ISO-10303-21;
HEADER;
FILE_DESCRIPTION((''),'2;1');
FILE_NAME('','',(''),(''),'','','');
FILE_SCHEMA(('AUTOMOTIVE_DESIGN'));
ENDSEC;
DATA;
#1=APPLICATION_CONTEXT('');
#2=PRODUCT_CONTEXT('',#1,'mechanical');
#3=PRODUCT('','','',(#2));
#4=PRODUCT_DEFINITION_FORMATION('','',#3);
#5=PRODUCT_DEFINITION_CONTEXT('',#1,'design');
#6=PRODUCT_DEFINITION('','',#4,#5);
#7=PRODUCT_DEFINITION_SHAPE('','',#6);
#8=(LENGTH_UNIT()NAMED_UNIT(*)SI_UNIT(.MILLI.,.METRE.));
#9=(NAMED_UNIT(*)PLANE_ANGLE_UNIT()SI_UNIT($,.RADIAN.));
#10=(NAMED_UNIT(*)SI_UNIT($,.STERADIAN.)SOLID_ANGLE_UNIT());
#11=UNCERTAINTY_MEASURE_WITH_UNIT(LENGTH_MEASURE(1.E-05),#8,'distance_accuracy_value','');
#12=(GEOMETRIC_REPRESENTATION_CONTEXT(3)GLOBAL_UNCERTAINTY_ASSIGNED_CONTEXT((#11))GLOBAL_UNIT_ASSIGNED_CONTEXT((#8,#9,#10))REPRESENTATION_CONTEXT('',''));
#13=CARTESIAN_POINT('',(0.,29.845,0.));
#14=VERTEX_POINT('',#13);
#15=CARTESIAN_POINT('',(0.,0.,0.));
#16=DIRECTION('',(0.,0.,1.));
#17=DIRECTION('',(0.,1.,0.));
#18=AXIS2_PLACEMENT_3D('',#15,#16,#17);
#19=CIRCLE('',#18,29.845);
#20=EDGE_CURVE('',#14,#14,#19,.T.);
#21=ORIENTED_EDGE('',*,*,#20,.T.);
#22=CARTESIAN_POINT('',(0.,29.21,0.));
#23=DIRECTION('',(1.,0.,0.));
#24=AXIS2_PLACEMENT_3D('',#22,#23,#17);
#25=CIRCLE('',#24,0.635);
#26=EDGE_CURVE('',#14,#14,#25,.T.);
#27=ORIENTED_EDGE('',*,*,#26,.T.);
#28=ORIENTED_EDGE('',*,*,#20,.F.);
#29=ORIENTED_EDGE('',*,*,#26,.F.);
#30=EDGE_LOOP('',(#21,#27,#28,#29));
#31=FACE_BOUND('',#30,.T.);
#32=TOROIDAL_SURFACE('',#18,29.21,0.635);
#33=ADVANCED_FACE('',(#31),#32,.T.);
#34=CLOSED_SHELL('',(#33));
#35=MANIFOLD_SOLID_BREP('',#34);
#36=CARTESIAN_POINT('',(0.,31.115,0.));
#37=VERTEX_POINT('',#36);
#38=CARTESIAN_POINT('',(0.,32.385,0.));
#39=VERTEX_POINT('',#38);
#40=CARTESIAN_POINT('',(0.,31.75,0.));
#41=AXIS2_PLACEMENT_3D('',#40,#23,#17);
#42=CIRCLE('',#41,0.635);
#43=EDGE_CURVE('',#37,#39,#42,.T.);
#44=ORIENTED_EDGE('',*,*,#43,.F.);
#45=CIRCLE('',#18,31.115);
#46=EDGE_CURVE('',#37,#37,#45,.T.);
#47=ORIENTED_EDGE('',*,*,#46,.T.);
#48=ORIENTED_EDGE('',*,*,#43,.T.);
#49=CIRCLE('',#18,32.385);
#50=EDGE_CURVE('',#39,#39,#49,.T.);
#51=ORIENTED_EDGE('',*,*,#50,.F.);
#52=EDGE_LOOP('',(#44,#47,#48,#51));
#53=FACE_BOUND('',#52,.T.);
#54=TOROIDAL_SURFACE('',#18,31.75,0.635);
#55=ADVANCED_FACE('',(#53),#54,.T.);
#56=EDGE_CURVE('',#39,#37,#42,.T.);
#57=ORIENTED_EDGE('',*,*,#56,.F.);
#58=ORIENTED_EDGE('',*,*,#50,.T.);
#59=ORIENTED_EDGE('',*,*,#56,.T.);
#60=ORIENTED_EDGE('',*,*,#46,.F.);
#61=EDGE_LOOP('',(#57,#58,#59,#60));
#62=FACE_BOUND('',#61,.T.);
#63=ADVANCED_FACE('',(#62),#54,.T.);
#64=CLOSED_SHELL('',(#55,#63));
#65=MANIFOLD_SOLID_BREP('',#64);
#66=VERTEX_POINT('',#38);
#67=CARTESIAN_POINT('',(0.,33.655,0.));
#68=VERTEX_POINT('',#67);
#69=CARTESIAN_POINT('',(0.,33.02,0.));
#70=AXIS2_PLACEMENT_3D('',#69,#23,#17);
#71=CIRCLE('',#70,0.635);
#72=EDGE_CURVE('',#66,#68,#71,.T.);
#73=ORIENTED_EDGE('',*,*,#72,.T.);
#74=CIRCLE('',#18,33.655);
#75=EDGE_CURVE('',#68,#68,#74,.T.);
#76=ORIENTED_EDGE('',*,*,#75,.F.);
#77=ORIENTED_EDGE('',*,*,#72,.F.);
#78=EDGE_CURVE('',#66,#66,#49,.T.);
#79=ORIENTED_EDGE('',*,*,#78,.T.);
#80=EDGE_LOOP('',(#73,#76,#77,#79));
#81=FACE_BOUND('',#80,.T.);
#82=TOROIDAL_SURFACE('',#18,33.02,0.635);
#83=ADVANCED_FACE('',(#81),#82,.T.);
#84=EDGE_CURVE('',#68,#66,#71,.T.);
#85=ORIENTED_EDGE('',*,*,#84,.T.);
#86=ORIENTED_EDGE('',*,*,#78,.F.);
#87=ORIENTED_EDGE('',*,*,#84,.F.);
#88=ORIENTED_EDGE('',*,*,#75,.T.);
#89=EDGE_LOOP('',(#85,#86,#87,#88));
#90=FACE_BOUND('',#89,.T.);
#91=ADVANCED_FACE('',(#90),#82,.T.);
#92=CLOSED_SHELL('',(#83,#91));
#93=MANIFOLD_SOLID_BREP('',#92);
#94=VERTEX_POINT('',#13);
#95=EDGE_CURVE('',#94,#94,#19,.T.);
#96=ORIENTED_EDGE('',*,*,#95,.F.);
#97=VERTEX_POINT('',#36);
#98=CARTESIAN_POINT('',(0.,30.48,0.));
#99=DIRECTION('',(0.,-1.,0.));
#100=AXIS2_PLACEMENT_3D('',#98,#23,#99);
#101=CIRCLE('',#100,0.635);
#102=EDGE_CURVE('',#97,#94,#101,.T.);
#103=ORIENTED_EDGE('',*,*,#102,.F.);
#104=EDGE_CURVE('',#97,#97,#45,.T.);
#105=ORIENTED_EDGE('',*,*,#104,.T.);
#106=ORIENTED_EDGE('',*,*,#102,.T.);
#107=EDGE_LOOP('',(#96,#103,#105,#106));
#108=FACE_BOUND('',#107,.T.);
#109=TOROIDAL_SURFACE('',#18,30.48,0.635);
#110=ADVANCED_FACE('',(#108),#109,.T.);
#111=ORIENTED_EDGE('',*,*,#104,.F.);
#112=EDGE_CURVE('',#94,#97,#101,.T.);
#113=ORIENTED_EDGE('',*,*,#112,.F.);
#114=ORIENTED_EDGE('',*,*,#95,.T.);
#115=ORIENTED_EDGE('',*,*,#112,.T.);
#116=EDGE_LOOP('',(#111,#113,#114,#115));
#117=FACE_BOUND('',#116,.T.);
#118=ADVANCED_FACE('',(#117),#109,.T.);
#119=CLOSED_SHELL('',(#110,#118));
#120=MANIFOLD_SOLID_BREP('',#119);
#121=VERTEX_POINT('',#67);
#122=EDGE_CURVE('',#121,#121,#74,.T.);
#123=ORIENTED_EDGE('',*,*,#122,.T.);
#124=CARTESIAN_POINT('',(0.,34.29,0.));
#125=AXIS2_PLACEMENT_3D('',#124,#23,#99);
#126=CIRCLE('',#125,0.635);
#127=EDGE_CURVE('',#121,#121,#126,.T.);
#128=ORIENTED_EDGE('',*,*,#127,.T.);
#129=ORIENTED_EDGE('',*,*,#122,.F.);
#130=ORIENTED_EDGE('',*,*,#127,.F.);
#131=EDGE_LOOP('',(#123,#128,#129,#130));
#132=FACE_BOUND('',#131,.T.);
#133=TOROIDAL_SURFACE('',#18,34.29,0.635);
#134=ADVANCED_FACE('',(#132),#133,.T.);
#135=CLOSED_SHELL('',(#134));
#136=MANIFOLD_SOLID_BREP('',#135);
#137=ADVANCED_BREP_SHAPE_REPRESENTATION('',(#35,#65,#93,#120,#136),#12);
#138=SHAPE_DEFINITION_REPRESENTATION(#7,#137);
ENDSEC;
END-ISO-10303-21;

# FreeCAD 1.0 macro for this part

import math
import FreeCAD as App
import Part
import Sketcher

V = App.Vector
Q = App.Units.Quantity

doc = App.newDocument("Part")
params = doc.addObject("Spreadsheet::Sheet", "Params")
for row, (alias, value) in enumerate([
    ("sketch1_diameter", "0.05 in"),
    ("revolution_angle", "360 deg"),
], start=1):
    params.set(f"A{row}", alias)
    params.set(f"B{row}", "=" + value)
    params.setAlias(f"B{row}", alias)

body = doc.addObject("PartDesign::Body", "Body")
body.AllowCompound = True

# Sketch on YZ plane
sketch1 = body.newObject("Sketcher::SketchObject", "Sketch")
sketch1.AttachmentSupport = (doc.getObject("YZ_Plane"), [""])
sketch1.MapMode = "FlatFace"
sketch1.addGeometry(Part.Circle(V(29.2, 0, 0), V(0, 0, 1), 0.6), False)
sketch1.addGeometry(Part.Circle(V(34.3, 0, 0), V(0, 0, 1), 0.6), False)
sketch1.addGeometry(Part.ArcOfCircle(Part.Circle(V(33, 0, 0), V(0, 0, 1), 0.6), math.radians(0), math.radians(180)), False)
sketch1.addGeometry(Part.ArcOfCircle(Part.Circle(V(33, 0, 0), V(0, 0, 1), 0.6), math.radians(180), math.radians(360)), False)
sketch1.addGeometry(Part.ArcOfCircle(Part.Circle(V(31.8, 0, 0), V(0, 0, 1), 0.6), math.radians(0), math.radians(180)), False)
sketch1.addGeometry(Part.ArcOfCircle(Part.Circle(V(31.8, 0, 0), V(0, 0, 1), 0.6), math.radians(180), math.radians(360)), False)
sketch1.addGeometry(Part.ArcOfCircle(Part.Circle(V(30.5, 0, 0), V(0, 0, 1), 0.6), math.radians(180), math.radians(360)), False)
sketch1.addGeometry(Part.ArcOfCircle(Part.Circle(V(30.5, 0, 0), V(0, 0, 1), 0.6), math.radians(0), math.radians(180)), False)
sketch1.addConstraint(Sketcher.Constraint("Tangent", 2, 1, 3, 2))
sketch1.addConstraint(Sketcher.Constraint("Coincident", 3, 1, 2, 2))
sketch1.addConstraint(Sketcher.Constraint("Tangent", 4, 1, 5, 2))
sketch1.addConstraint(Sketcher.Constraint("Coincident", 5, 1, 4, 2))
sketch1.addConstraint(Sketcher.Constraint("Tangent", 6, 1, 7, 2))
sketch1.addConstraint(Sketcher.Constraint("Coincident", 7, 1, 6, 2))
sketch1.addConstraint(Sketcher.Constraint("Coincident", 4, 1, 3, 1))
sketch1.addConstraint(Sketcher.Constraint("Coincident", 7, 1, 5, 1))
sketch1.addConstraint(Sketcher.Constraint("Equal", 0, 1))
sketch1.addConstraint(Sketcher.Constraint("Equal", 1, 2))
sketch1.addConstraint(Sketcher.Constraint("Equal", 3, 4))
sketch1.addConstraint(Sketcher.Constraint("Equal", 5, 6))
sketch1.addConstraint(Sketcher.Constraint("PointOnObject", 0, 3, -1))
sketch1.addConstraint(Sketcher.Constraint("PointOnObject", 1, 3, -1))
sketch1.addConstraint(Sketcher.Constraint("PointOnObject", 2, 3, -1))
sketch1.addConstraint(Sketcher.Constraint("PointOnObject", 4, 3, -1))
sketch1.addConstraint(Sketcher.Constraint("PointOnObject", 6, 3, -1))
sketch1.addConstraint(Sketcher.Constraint("PointOnObject", 2, 1, -1))
sketch1.addConstraint(Sketcher.Constraint("PointOnObject", 3, 1, -1))
sketch1.addConstraint(Sketcher.Constraint("PointOnObject", 5, 1, -1))
sketch1.addConstraint(Sketcher.Constraint("PointOnObject", 6, 1, -1))
sketch1.addConstraint(Sketcher.Constraint("Diameter", 0, Q("0.05 in")))
sketch1.addConstraint(Sketcher.Constraint("DistanceX", -1, 1, 2, 3, Q("1.3 in")))
sketch1.addConstraint(Sketcher.Constraint("DistanceX", 0, 3, 1, 3, Q("0.2 in")))
sketch1.addConstraint(Sketcher.Constraint("DistanceX", 0, 3, 4, 3, Q("0.1 in")))
sketch1.setExpression("Constraints[21]", "Params.sketch1_diameter")
revolution = body.newObject("PartDesign::Revolution", "Revolution")
revolution.Profile = sketch1
revolution.ReferenceAxis = (sketch1, ["V_Axis"])
revolution.setExpression("Angle", "Params.revolution_angle")

doc.recompute()
